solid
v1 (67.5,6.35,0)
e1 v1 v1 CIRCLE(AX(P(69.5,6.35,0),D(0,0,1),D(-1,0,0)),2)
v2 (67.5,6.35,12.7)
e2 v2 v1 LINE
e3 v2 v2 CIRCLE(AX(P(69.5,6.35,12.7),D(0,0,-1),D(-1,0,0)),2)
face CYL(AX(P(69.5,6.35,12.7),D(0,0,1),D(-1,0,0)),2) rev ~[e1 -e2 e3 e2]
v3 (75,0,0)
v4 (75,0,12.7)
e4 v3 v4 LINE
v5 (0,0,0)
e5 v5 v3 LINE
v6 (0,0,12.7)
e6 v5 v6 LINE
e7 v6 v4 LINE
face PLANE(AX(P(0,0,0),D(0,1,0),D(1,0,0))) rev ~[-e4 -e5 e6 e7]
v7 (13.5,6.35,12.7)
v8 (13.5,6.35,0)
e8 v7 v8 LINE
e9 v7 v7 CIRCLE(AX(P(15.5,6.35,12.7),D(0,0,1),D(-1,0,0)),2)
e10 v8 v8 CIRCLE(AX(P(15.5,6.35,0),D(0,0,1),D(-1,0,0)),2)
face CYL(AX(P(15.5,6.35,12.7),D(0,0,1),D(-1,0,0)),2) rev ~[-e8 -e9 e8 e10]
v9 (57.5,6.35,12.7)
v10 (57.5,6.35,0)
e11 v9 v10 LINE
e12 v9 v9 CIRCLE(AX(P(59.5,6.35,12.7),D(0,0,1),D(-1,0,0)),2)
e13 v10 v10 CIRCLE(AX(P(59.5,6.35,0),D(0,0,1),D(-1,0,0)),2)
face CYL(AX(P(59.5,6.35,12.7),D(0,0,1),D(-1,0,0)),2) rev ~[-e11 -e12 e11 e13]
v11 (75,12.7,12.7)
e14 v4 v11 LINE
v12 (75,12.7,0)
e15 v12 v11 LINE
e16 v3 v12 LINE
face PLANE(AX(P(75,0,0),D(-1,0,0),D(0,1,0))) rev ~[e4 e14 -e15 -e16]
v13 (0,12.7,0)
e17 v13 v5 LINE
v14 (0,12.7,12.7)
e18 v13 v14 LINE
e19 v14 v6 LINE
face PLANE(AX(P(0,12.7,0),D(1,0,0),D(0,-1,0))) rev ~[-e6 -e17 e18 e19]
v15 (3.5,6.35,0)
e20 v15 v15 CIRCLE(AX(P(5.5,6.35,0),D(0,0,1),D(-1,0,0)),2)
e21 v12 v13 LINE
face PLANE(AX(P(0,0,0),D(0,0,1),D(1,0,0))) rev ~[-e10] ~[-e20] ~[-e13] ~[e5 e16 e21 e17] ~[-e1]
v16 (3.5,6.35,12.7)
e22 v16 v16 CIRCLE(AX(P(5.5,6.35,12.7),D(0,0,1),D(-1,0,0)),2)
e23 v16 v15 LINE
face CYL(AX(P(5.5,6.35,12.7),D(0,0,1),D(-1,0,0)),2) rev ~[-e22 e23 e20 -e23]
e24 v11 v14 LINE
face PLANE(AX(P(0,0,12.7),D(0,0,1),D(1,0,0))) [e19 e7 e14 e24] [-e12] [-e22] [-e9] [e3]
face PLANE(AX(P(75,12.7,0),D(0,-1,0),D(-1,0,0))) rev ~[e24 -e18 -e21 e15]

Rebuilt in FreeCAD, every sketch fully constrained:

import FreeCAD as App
import Part
import Sketcher
from FreeCAD import Vector

doc = App.newDocument("Part")
body = doc.addObject("PartDesign::Body", "Body")

# Sketch on XY plane
sketch1 = doc.addObject("Sketcher::SketchObject", "Sketch")
body.addObject(sketch1)
sketch1.AttachmentSupport = (doc.XY_Plane, [""])
sketch1.MapMode = "FlatFace"
sketch1.addGeometry([
    Part.LineSegment(Vector(0, 13, 0), Vector(0, 0, 0)),
    Part.LineSegment(Vector(0, 0, 0), Vector(75, 0, 0)),
    Part.LineSegment(Vector(75, 0, 0), Vector(75, 13, 0)),
    Part.LineSegment(Vector(75, 13, 0), Vector(0, 13, 0)),
], False)
sketch1.addConstraint([
    Sketcher.Constraint("Coincident", 0, 2, 1, 1),
    Sketcher.Constraint("Coincident", 1, 2, 2, 1),
    Sketcher.Constraint("Coincident", 2, 2, 3, 1),
    Sketcher.Constraint("Coincident", 3, 2, 0, 1),
    Sketcher.Constraint("Vertical", 0),
    Sketcher.Constraint("Horizontal", 1),
    Sketcher.Constraint("Vertical", 2),
    Sketcher.Constraint("Horizontal", 3),
    Sketcher.Constraint("Coincident", 0, 2, -1, 1),
    Sketcher.Constraint("DistanceX", 1, 1, 1, 2, 75.0),
    Sketcher.Constraint("DistanceY", 0, 2, 0, 1, 12.7),
])
pad1 = doc.addObject("PartDesign::Pad", "Pad")
body.addObject(pad1)
pad1.Profile = sketch1
pad1.Length = 12.7

# Sketch on XY plane
sketch2 = doc.addObject("Sketcher::SketchObject", "Sketch001")
body.addObject(sketch2)
sketch2.AttachmentSupport = (doc.XY_Plane, [""])
sketch2.MapMode = "FlatFace"
sketch2.AttachmentOffset = App.Placement(Vector(0, 0, 12.7), App.Rotation())
sketch2.addGeometry([
    Part.Circle(Vector(5.5, 6.3, 0), Vector(0, 0, 1), 2),
    Part.Circle(Vector(69.5, 6.3, 0), Vector(0, 0, 1), 2),
    Part.Circle(Vector(15.5, 6.3, 0), Vector(0, 0, 1), 2),
    Part.Circle(Vector(59.5, 6.3, 0), Vector(0, 0, 1), 2),
], False)
sketch2.addConstraint([
    Sketcher.Constraint("Equal", 0, 1),
    Sketcher.Constraint("Equal", 1, 2),
    Sketcher.Constraint("Equal", 2, 3),
    Sketcher.Constraint("Horizontal", 0, 3, 1, 3),
    Sketcher.Constraint("Horizontal", 1, 3, 2, 3),
    Sketcher.Constraint("Horizontal", 2, 3, 3, 3),
    Sketcher.Constraint("Diameter", 0, 4.0),
    Sketcher.Constraint("DistanceX", 0, 3, 1, 3, 64.0),
    Sketcher.Constraint("DistanceX", 0, 3, 2, 3, 10.0),
    Sketcher.Constraint("DistanceX", 3, 3, 1, 3, 10.0),
    Sketcher.Constraint("DistanceX", -1, 1, 0, 3, 5.5),
    Sketcher.Constraint("DistanceY", -1, 1, 0, 3, 6.35),
])
pocket1 = doc.addObject("PartDesign::Pocket", "Pocket")
body.addObject(pocket1)
pocket1.Profile = sketch2
pocket1.Length = 17.78

doc.recompute()
